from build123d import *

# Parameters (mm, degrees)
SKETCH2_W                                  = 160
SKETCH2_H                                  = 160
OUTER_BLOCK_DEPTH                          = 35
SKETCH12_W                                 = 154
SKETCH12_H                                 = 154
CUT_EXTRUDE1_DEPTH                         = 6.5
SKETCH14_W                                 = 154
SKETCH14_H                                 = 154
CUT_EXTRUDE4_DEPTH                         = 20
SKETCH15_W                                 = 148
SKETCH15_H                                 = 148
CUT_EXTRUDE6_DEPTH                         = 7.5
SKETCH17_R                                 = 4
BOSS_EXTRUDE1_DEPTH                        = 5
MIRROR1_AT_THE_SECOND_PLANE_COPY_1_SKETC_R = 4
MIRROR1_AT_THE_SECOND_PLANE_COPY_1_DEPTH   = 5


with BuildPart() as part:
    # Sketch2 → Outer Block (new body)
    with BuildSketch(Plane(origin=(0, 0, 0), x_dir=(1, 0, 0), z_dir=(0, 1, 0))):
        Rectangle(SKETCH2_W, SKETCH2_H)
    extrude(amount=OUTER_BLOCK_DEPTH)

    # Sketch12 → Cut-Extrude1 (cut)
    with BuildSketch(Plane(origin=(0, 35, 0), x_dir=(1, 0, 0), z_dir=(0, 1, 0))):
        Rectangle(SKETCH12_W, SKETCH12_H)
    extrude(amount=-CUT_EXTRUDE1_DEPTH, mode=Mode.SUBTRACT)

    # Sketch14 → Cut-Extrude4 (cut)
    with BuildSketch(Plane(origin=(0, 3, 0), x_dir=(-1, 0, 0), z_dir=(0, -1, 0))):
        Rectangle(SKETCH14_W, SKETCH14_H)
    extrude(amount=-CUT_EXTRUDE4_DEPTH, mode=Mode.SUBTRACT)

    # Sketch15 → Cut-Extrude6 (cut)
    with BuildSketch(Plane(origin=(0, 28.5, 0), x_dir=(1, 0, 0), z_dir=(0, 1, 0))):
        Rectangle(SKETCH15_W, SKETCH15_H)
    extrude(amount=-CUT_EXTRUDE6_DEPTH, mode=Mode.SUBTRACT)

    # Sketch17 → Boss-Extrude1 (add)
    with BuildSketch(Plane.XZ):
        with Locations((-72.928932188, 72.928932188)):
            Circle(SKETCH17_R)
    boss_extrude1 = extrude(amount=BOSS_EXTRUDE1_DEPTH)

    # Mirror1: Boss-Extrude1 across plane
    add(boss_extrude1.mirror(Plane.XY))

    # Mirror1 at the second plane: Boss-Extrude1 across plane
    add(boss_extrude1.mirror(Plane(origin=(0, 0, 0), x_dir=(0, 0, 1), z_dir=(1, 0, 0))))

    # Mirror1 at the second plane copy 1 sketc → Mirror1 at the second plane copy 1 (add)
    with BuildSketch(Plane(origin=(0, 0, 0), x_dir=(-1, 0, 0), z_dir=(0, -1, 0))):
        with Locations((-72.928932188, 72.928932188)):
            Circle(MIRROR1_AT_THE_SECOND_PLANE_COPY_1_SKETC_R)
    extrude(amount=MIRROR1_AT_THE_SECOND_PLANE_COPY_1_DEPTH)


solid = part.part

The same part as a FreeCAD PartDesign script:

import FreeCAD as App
import Part
import Sketcher
from FreeCAD import Vector

doc = App.newDocument("Part")
params = doc.addObject("Spreadsheet::Sheet", "Params")
for row, (alias, value) in enumerate([
    ("sketch1_width", "160 mm"),
    ("pad1_length", "35 mm"),
    ("sketch2_width", "154 mm"),
    ("pocket1_length", "6.5 mm"),
    ("sketch3_width", "154 mm"),
    ("pocket2_length", "20 mm"),
    ("sketch4_width", "148 mm"),
    ("pocket3_length", "7.5 mm"),
    ("sketch5_diameter", "8 mm"),
    ("pad2_length", "5 mm"),
    ("sketch6_diameter", "8 mm"),
    ("pad3_length", "5 mm"),
], start=1):
    params.set(f"A{row}", alias)
    params.set(f"B{row}", "=" + value)
    params.setAlias(f"B{row}", alias)

body = doc.addObject("PartDesign::Body", "Body")

# Sketch on XZ plane
sketch1 = doc.addObject("Sketcher::SketchObject", "Sketch")
body.addObject(sketch1)
sketch1.AttachmentSupport = (doc.XZ_Plane, [""])
sketch1.MapMode = "FlatFace"
sketch1.addGeometry([
    Part.LineSegment(Vector(-80, -80, 0), Vector(-80, 80, 0)),
    Part.LineSegment(Vector(-80, 80, 0), Vector(80, 80, 0)),
    Part.LineSegment(Vector(80, 80, 0), Vector(80, -80, 0)),
    Part.LineSegment(Vector(80, -80, 0), Vector(-80, -80, 0)),
], False)
sketch1.addConstraint([
    Sketcher.Constraint("Coincident", 0, 2, 1, 1),
    Sketcher.Constraint("Coincident", 1, 2, 2, 1),
    Sketcher.Constraint("Coincident", 2, 2, 3, 1),
    Sketcher.Constraint("Coincident", 3, 2, 0, 1),
    Sketcher.Constraint("Vertical", 0),
    Sketcher.Constraint("Horizontal", 1),
    Sketcher.Constraint("Vertical", 2),
    Sketcher.Constraint("Horizontal", 3),
    Sketcher.Constraint("Symmetric", 0, 2, 2, 2, -1, 1),
    Sketcher.Constraint("Equal", 3, 0),
    Sketcher.Constraint("DistanceX", 1, 1, 1, 2, 160.0),
])
sketch1.setExpression("Constraints[10]", "Params.sketch1_width")
pad1 = doc.addObject("PartDesign::Pad", "Pad")
body.addObject(pad1)
pad1.Profile = sketch1
pad1.setExpression("Length", "Params.pad1_length")
pad1.Reversed = True

# Sketch on XZ plane
sketch2 = doc.addObject("Sketcher::SketchObject", "Sketch001")
body.addObject(sketch2)
sketch2.AttachmentSupport = (doc.XZ_Plane, [""])
sketch2.MapMode = "FlatFace"
sketch2.AttachmentOffset = App.Placement(Vector(0, 0, -35), App.Rotation())
sketch2.addGeometry([
    Part.LineSegment(Vector(-77, -77, 0), Vector(-77, 77, 0)),
    Part.LineSegment(Vector(-77, 77, 0), Vector(77, 77, 0)),
    Part.LineSegment(Vector(77, 77, 0), Vector(77, -77, 0)),
    Part.LineSegment(Vector(77, -77, 0), Vector(-77, -77, 0)),
], False)
sketch2.addConstraint([
    Sketcher.Constraint("Coincident", 0, 2, 1, 1),
    Sketcher.Constraint("Coincident", 1, 2, 2, 1),
    Sketcher.Constraint("Coincident", 2, 2, 3, 1),
    Sketcher.Constraint("Coincident", 3, 2, 0, 1),
    Sketcher.Constraint("Vertical", 0),
    Sketcher.Constraint("Horizontal", 1),
    Sketcher.Constraint("Vertical", 2),
    Sketcher.Constraint("Horizontal", 3),
    Sketcher.Constraint("Symmetric", 0, 2, 2, 2, -1, 1),
    Sketcher.Constraint("Equal", 3, 0),
    Sketcher.Constraint("DistanceX", 1, 1, 1, 2, 154.0),
])
sketch2.setExpression("Constraints[10]", "Params.sketch2_width")
pocket1 = doc.addObject("PartDesign::Pocket", "Pocket")
body.addObject(pocket1)
pocket1.Profile = sketch2
pocket1.setExpression("Length", "Params.pocket1_length")
pocket1.Reversed = True

# Sketch on XZ plane
sketch3 = doc.addObject("Sketcher::SketchObject", "Sketch002")
body.addObject(sketch3)
sketch3.AttachmentSupport = (doc.XZ_Plane, [""])
sketch3.MapMode = "FlatFace"
sketch3.AttachmentOffset = App.Placement(Vector(0, 0, -3), App.Rotation())
sketch3.addGeometry([
    Part.LineSegment(Vector(77, -77, 0), Vector(77, 77, 0)),
    Part.LineSegment(Vector(77, 77, 0), Vector(-77, 77, 0)),
    Part.LineSegment(Vector(-77, 77, 0), Vector(-77, -77, 0)),
    Part.LineSegment(Vector(-77, -77, 0), Vector(77, -77, 0)),
], False)
sketch3.addConstraint([
    Sketcher.Constraint("Coincident", 0, 2, 1, 1),
    Sketcher.Constraint("Coincident", 1, 2, 2, 1),
    Sketcher.Constraint("Coincident", 2, 2, 3, 1),
    Sketcher.Constraint("Coincident", 3, 2, 0, 1),
    Sketcher.Constraint("Vertical", 0),
    Sketcher.Constraint("Horizontal", 1),
    Sketcher.Constraint("Vertical", 2),
    Sketcher.Constraint("Horizontal", 3),
    Sketcher.Constraint("Symmetric", 0, 2, 2, 2, -1, 1),
    Sketcher.Constraint("Equal", 3, 0),
    Sketcher.Constraint("DistanceX", 1, 2, 1, 1, 154.0),
])
sketch3.setExpression("Constraints[10]", "Params.sketch3_width")
pocket2 = doc.addObject("PartDesign::Pocket", "Pocket001")
body.addObject(pocket2)
pocket2.Profile = sketch3
pocket2.setExpression("Length", "Params.pocket2_length")

# Sketch on XZ plane
sketch4 = doc.addObject("Sketcher::SketchObject", "Sketch003")
body.addObject(sketch4)
sketch4.AttachmentSupport = (doc.XZ_Plane, [""])
sketch4.MapMode = "FlatFace"
sketch4.AttachmentOffset = App.Placement(Vector(0, 0, -28.5), App.Rotation())
sketch4.addGeometry([
    Part.LineSegment(Vector(-74, -74, 0), Vector(-74, 74, 0)),
    Part.LineSegment(Vector(-74, 74, 0), Vector(74, 74, 0)),
    Part.LineSegment(Vector(74, 74, 0), Vector(74, -74, 0)),
    Part.LineSegment(Vector(74, -74, 0), Vector(-74, -74, 0)),
], False)
sketch4.addConstraint([
    Sketcher.Constraint("Coincident", 0, 2, 1, 1),
    Sketcher.Constraint("Coincident", 1, 2, 2, 1),
    Sketcher.Constraint("Coincident", 2, 2, 3, 1),
    Sketcher.Constraint("Coincident", 3, 2, 0, 1),
    Sketcher.Constraint("Vertical", 0),
    Sketcher.Constraint("Horizontal", 1),
    Sketcher.Constraint("Vertical", 2),
    Sketcher.Constraint("Horizontal", 3),
    Sketcher.Constraint("Symmetric", 0, 2, 2, 2, -1, 1),
    Sketcher.Constraint("Equal", 3, 0),
    Sketcher.Constraint("DistanceX", 1, 1, 1, 2, 148.0),
])
sketch4.setExpression("Constraints[10]", "Params.sketch4_width")
pocket3 = doc.addObject("PartDesign::Pocket", "Pocket002")
body.addObject(pocket3)
pocket3.Profile = sketch4
pocket3.setExpression("Length", "Params.pocket3_length")
pocket3.Reversed = True

# Sketch on XZ plane
sketch5 = doc.addObject("Sketcher::SketchObject", "Sketch004")
body.addObject(sketch5)
sketch5.AttachmentSupport = (doc.XZ_Plane, [""])
sketch5.MapMode = "FlatFace"
sketch5.addGeometry(Part.Circle(Vector(-72.9, 72.9, 0), Vector(0, 0, 1), 4), False)
sketch5.addConstraint([
    Sketcher.Constraint("Diameter", 0, 8.0),
    Sketcher.Constraint("DistanceX", 0, 3, -1, 1, 72.928932),
    Sketcher.Constraint("DistanceY", -1, 1, 0, 3, 72.928932),
])
sketch5.setExpression("Constraints[0]", "Params.sketch5_diameter")
pad2 = doc.addObject("PartDesign::Pad", "Pad001")
body.addObject(pad2)
pad2.Profile = sketch5
pad2.setExpression("Length", "Params.pad2_length")
doc.recompute()

mirrored = doc.addObject("PartDesign::Mirrored", "Mirrored")
body.addObject(mirrored)
mirrored.Originals = [pad2]
mirrored.MirrorPlane = (doc.XY_Plane, [""])
body.Tip = mirrored
doc.recompute()

mirrored2 = doc.addObject("PartDesign::Mirrored", "Mirrored001")
body.addObject(mirrored2)
mirrored2.Originals = [pad2]
mirrored2.MirrorPlane = (doc.YZ_Plane, [""])
body.Tip = mirrored2

# Sketch on XZ plane
sketch6 = doc.addObject("Sketcher::SketchObject", "Sketch005")
body.addObject(sketch6)
sketch6.AttachmentSupport = (doc.XZ_Plane, [""])
sketch6.MapMode = "FlatFace"
sketch6.addGeometry(Part.Circle(Vector(72.9, -72.9, 0), Vector(0, 0, 1), 4), False)
sketch6.addConstraint([
    Sketcher.Constraint("Diameter", 0, 8.0),
    Sketcher.Constraint("DistanceX", -1, 1, 0, 3, 72.928932),
    Sketcher.Constraint("DistanceY", 0, 3, -1, 1, 72.928932),
])
sketch6.setExpression("Constraints[0]", "Params.sketch6_diameter")
pad3 = doc.addObject("PartDesign::Pad", "Pad002")
body.addObject(pad3)
pad3.Profile = sketch6
pad3.setExpression("Length", "Params.pad3_length")

doc.recompute()
